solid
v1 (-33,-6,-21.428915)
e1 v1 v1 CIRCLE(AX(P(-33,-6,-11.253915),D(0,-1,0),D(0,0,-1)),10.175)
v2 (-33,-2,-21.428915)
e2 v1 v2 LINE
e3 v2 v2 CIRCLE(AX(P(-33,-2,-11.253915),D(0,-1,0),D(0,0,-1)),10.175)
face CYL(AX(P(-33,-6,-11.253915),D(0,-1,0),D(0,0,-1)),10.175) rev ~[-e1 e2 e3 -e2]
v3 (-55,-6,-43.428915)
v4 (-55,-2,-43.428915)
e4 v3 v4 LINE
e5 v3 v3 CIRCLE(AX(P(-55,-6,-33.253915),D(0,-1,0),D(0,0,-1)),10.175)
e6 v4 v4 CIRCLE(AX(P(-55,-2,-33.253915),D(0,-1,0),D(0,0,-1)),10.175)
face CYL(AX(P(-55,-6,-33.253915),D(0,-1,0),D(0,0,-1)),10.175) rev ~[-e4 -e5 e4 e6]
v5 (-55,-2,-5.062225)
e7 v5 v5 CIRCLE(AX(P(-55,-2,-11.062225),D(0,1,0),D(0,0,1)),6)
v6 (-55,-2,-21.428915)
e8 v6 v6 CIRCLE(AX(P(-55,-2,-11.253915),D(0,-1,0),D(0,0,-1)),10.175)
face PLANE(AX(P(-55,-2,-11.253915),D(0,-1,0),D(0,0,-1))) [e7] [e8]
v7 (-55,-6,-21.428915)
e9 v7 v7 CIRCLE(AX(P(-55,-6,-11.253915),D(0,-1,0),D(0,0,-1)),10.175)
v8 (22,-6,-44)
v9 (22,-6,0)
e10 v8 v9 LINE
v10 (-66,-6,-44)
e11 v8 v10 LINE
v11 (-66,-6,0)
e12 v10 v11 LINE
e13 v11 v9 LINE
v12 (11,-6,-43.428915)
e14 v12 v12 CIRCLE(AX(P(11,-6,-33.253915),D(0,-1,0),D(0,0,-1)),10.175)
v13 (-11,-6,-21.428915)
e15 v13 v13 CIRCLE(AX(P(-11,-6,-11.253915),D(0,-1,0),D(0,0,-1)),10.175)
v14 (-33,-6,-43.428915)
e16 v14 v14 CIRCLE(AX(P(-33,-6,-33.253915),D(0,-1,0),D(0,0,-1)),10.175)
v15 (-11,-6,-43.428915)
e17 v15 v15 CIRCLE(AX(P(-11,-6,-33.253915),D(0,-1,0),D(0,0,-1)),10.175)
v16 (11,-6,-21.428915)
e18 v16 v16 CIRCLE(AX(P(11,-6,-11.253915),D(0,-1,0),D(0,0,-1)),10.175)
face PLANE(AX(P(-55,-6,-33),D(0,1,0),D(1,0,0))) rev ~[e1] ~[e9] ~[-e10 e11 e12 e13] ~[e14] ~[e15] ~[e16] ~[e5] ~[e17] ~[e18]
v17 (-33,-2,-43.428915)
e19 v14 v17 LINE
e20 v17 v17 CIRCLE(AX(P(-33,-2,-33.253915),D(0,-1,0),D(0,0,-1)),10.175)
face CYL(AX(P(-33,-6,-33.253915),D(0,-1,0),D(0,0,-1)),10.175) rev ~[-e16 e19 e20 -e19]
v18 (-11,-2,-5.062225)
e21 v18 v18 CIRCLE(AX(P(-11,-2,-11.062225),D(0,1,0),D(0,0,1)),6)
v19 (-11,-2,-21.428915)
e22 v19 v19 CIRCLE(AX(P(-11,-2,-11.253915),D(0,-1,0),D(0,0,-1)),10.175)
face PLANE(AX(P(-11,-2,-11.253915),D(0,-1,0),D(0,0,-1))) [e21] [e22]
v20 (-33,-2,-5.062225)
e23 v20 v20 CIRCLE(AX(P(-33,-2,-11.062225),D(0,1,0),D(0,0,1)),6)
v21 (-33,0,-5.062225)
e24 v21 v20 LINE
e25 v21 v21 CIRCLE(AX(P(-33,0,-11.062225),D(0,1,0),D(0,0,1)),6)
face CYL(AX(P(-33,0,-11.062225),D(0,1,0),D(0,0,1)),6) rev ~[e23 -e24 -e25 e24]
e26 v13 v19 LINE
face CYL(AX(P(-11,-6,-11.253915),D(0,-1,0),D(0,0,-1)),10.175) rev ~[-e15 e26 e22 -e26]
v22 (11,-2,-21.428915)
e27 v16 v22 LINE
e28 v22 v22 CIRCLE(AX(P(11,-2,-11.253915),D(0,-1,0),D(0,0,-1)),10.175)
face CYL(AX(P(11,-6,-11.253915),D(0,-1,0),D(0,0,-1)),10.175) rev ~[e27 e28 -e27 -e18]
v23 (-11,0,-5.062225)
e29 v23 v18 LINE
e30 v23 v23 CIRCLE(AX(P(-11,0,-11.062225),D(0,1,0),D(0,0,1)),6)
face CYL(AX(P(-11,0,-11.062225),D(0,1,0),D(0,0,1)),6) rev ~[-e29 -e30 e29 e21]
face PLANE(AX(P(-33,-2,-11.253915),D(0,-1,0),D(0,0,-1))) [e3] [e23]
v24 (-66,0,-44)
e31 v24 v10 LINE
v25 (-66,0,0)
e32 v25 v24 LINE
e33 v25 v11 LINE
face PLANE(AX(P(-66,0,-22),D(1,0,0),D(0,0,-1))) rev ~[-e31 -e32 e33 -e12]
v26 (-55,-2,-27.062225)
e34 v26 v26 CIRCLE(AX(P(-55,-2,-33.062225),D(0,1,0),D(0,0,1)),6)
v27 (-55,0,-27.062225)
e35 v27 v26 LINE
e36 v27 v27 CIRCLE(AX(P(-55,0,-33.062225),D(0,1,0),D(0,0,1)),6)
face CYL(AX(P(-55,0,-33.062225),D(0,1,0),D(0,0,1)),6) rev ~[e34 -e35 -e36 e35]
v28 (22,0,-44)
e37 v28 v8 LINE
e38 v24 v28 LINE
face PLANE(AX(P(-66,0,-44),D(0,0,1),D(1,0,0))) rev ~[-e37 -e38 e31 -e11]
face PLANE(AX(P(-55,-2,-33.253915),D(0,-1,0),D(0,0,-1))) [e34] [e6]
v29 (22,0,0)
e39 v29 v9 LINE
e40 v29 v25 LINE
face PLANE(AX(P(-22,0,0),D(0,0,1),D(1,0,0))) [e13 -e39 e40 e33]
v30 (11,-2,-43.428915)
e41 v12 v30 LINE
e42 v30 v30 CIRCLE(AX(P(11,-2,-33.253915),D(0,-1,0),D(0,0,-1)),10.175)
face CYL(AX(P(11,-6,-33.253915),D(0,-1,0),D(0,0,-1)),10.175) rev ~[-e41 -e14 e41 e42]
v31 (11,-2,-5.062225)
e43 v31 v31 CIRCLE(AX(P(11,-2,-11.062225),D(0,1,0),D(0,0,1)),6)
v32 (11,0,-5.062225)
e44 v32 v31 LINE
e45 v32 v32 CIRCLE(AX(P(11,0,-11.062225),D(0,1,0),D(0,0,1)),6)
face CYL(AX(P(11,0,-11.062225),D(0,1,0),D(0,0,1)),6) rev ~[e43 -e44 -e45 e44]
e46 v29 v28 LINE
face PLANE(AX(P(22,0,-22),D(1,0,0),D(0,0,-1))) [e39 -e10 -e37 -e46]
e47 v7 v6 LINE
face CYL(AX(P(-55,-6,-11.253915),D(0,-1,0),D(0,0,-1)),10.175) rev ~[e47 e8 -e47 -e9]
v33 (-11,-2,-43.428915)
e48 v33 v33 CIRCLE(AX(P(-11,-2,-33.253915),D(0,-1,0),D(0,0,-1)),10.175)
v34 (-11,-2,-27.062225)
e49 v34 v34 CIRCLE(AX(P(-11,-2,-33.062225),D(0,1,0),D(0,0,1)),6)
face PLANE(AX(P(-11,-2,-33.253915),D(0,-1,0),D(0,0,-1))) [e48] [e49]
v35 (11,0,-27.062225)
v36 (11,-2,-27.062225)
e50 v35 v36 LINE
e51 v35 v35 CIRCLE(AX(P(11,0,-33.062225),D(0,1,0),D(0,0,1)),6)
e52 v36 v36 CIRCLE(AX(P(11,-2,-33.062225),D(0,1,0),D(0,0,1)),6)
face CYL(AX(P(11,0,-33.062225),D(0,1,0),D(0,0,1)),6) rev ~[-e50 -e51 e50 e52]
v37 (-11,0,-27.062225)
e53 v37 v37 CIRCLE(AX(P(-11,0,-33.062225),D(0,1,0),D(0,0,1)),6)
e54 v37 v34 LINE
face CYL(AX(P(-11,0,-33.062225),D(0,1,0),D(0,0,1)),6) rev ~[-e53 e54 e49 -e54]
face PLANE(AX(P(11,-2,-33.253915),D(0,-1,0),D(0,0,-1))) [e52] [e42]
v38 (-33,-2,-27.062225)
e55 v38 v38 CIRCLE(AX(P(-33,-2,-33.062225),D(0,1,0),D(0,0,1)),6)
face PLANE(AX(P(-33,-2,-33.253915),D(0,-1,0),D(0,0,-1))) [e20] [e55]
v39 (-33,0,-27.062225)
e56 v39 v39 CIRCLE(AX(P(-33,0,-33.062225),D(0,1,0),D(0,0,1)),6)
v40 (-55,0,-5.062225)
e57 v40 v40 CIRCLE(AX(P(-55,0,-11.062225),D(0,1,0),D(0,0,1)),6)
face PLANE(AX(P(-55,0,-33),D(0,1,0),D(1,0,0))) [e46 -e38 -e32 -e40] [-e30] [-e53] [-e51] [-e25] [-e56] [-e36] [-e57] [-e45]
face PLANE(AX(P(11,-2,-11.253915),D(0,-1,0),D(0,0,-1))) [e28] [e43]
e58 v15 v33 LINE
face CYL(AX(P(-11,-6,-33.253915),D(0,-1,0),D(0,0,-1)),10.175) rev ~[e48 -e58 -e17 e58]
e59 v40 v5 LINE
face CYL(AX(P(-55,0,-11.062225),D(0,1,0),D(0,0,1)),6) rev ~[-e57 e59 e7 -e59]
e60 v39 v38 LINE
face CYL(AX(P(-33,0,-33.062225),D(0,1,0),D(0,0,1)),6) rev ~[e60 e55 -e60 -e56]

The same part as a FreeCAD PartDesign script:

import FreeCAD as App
import Part
import Sketcher

doc = App.newDocument("Part")
body = doc.addObject("PartDesign::Body", "Body")

sketch1 = body.newObject("Sketcher::SketchObject", "Sketch")
sketch1.AttachmentSupport = (doc.getObject("XZ_Plane"), [""])
sketch1.MapMode = "FlatFace"
sketch1.addGeometry([
    Part.LineSegment(App.Vector(0, -22, 0), App.Vector(0, 0, 0)),
    Part.LineSegment(App.Vector(0, 0, 0), App.Vector(22, 0, 0)),
    Part.LineSegment(App.Vector(22, 0, 0), App.Vector(22, -22, 0)),
    Part.LineSegment(App.Vector(22, -22, 0), App.Vector(0, -22, 0)),
], False)
sketch1.addConstraint([
    Sketcher.Constraint("Coincident", 0, 2, 1, 1),
    Sketcher.Constraint("Coincident", 1, 2, 2, 1),
    Sketcher.Constraint("Coincident", 2, 2, 3, 1),
    Sketcher.Constraint("Coincident", 3, 2, 0, 1),
    Sketcher.Constraint("Vertical", 0),
    Sketcher.Constraint("Horizontal", 1),
    Sketcher.Constraint("Vertical", 2),
    Sketcher.Constraint("Horizontal", 3),
    Sketcher.Constraint("Coincident", 0, 2, -1, 1),
    Sketcher.Constraint("Equal", 3, 0),
    Sketcher.Constraint("DistanceX", 1, 1, 1, 2, 22.0),
])
pad1 = body.newObject("PartDesign::Pad", "Pad")
pad1.Profile = sketch1
pad1.Length = 6

sketch2 = body.newObject("Sketcher::SketchObject", "Sketch001")
sketch2.AttachmentSupport = (doc.getObject("XZ_Plane"), [""])
sketch2.MapMode = "FlatFace"
sketch2.addGeometry(Part.Circle(App.Vector(11, -11, 0), App.Vector(0, 0, 1), 6), False)
sketch2.addConstraint([
    Sketcher.Constraint("Diameter", 0, 12.0),
    Sketcher.Constraint("DistanceX", -1, 1, 0, 3, 11.0),
    Sketcher.Constraint("DistanceY", 0, 3, -1, 1, 11.062225),
])
pocket1 = body.newObject("PartDesign::Pocket", "Pocket")
pocket1.Profile = sketch2
pocket1.Length = 2
pocket1.Reversed = True

sketch3 = body.newObject("Sketcher::SketchObject", "Sketch002")
sketch3.AttachmentSupport = (doc.getObject("XZ_Plane"), [""])
sketch3.MapMode = "FlatFace"
sketch3.AttachmentOffset = App.Placement(App.Vector(0, 0, 6), App.Rotation())
sketch3.addGeometry(Part.Circle(App.Vector(11, -11, 0), App.Vector(0, 0, 1), 10), False)
sketch3.addConstraint([
    Sketcher.Constraint("Diameter", 0, 20.35),
    Sketcher.Constraint("DistanceX", -1, 1, 0, 3, 11.0),
    Sketcher.Constraint("DistanceY", 0, 3, -1, 1, 11.253915),
])
pocket2 = body.newObject("PartDesign::Pocket", "Pocket001")
pocket2.Profile = sketch3
pocket2.Length = 4
doc.recompute()

linearpattern = body.newObject("PartDesign::LinearPattern", "LinearPattern")
linearpattern.Originals = [pad1, pocket1, pocket2]
linearpattern.Direction = (doc.getObject("X_Axis"), [""])
linearpattern.Mode = "offset"
linearpattern.Offset = 22
linearpattern.Occurrences = 4
linearpattern.Reversed = True
body.Tip = linearpattern
doc.recompute()

linearpattern2 = body.newObject("PartDesign::LinearPattern", "LinearPattern001")
linearpattern2.Originals = [pad1, pocket1, pocket2]
linearpattern2.Direction = (doc.getObject("Z_Axis"), [""])
linearpattern2.Mode = "offset"
linearpattern2.Offset = 22
linearpattern2.Occurrences = 2
linearpattern2.Reversed = True
body.Tip = linearpattern2

sketch4 = body.newObject("Sketcher::SketchObject", "Sketch003")
sketch4.AttachmentSupport = (doc.getObject("XZ_Plane"), [""])
sketch4.MapMode = "FlatFace"
sketch4.addGeometry([
    Part.LineSegment(App.Vector(-22, -44, 0), App.Vector(-22, -22, 0)),
    Part.LineSegment(App.Vector(-22, -22, 0), App.Vector(0, -22, 0)),
    Part.LineSegment(App.Vector(0, -22, 0), App.Vector(0, -44, 0)),
    Part.LineSegment(App.Vector(0, -44, 0), App.Vector(-22, -44, 0)),
], False)
sketch4.addConstraint([
    Sketcher.Constraint("Coincident", 0, 2, 1, 1),
    Sketcher.Constraint("Coincident", 1, 2, 2, 1),
    Sketcher.Constraint("Coincident", 2, 2, 3, 1),
    Sketcher.Constraint("Coincident", 3, 2, 0, 1),
    Sketcher.Constraint("Vertical", 0),
    Sketcher.Constraint("Horizontal", 1),
    Sketcher.Constraint("Vertical", 2),
    Sketcher.Constraint("Horizontal", 3),
    Sketcher.Constraint("PointOnObject", 1, 2, -2),
    Sketcher.Constraint("Equal", 3, 0),
    Sketcher.Constraint("DistanceX", 1, 1, 1, 2, 22.0),
    Sketcher.Constraint("DistanceY", 0, 2, -1, 1, 22.0),
])
pad2 = body.newObject("PartDesign::Pad", "Pad001")
pad2.Profile = sketch4
pad2.Length = 6

sketch5 = body.newObject("Sketcher::SketchObject", "Sketch004")
sketch5.AttachmentSupport = (doc.getObject("XZ_Plane"), [""])
sketch5.MapMode = "FlatFace"
sketch5.addGeometry([
    Part.LineSegment(App.Vector(-44, -44, 0), App.Vector(-44, -22, 0)),
    Part.LineSegment(App.Vector(-44, -22, 0), App.Vector(-22, -22, 0)),
    Part.LineSegment(App.Vector(-22, -22, 0), App.Vector(-22, -44, 0)),
    Part.LineSegment(App.Vector(-22, -44, 0), App.Vector(-44, -44, 0)),
], False)
sketch5.addConstraint([
    Sketcher.Constraint("Coincident", 0, 2, 1, 1),
    Sketcher.Constraint("Coincident", 1, 2, 2, 1),
    Sketcher.Constraint("Coincident", 2, 2, 3, 1),
    Sketcher.Constraint("Coincident", 3, 2, 0, 1),
    Sketcher.Constraint("Vertical", 0),
    Sketcher.Constraint("Horizontal", 1),
    Sketcher.Constraint("Vertical", 2),
    Sketcher.Constraint("Horizontal", 3),
    Sketcher.Constraint("Equal", 3, 0),
    Sketcher.Constraint("DistanceX", 1, 1, 1, 2, 22.0),
    Sketcher.Constraint("DistanceX", 0, 2, -1, 1, 44.0),
    Sketcher.Constraint("DistanceY", 0, 2, -1, 1, 22.0),
])
pad3 = body.newObject("PartDesign::Pad", "Pad002")
pad3.Profile = sketch5
pad3.Length = 6

sketch6 = body.newObject("Sketcher::SketchObject", "Sketch005")
sketch6.AttachmentSupport = (doc.getObject("XZ_Plane"), [""])
sketch6.MapMode = "FlatFace"
sketch6.addGeometry([
    Part.LineSegment(App.Vector(-66, -44, 0), App.Vector(-66, -22, 0)),
    Part.LineSegment(App.Vector(-66, -22, 0), App.Vector(-44, -22, 0)),
    Part.LineSegment(App.Vector(-44, -22, 0), App.Vector(-44, -44, 0)),
    Part.LineSegment(App.Vector(-44, -44, 0), App.Vector(-66, -44, 0)),
], False)
sketch6.addConstraint([
    Sketcher.Constraint("Coincident", 0, 2, 1, 1),
    Sketcher.Constraint("Coincident", 1, 2, 2, 1),
    Sketcher.Constraint("Coincident", 2, 2, 3, 1),
    Sketcher.Constraint("Coincident", 3, 2, 0, 1),
    Sketcher.Constraint("Vertical", 0),
    Sketcher.Constraint("Horizontal", 1),
    Sketcher.Constraint("Vertical", 2),
    Sketcher.Constraint("Horizontal", 3),
    Sketcher.Constraint("Equal", 3, 0),
    Sketcher.Constraint("DistanceX", 1, 1, 1, 2, 22.0),
    Sketcher.Constraint("DistanceX", 0, 2, -1, 1, 66.0),
    Sketcher.Constraint("DistanceY", 0, 2, -1, 1, 22.0),
])
pad4 = body.newObject("PartDesign::Pad", "Pad003")
pad4.Profile = sketch6
pad4.Length = 6

sketch7 = body.newObject("Sketcher::SketchObject", "Sketch006")
sketch7.AttachmentSupport = (doc.getObject("XZ_Plane"), [""])
sketch7.MapMode = "FlatFace"
sketch7.addGeometry(Part.Circle(App.Vector(-11, -33, 0), App.Vector(0, 0, 1), 6), False)
sketch7.addConstraint([
    Sketcher.Constraint("Diameter", 0, 12.0),
    Sketcher.Constraint("DistanceX", 0, 3, -1, 1, 11.0),
    Sketcher.Constraint("DistanceY", 0, 3, -1, 1, 33.062225),
])
pocket3 = body.newObject("PartDesign::Pocket", "Pocket002")
pocket3.Profile = sketch7
pocket3.Length = 2
pocket3.Reversed = True

sketch8 = body.newObject("Sketcher::SketchObject", "Sketch007")
sketch8.AttachmentSupport = (doc.getObject("XZ_Plane"), [""])
sketch8.MapMode = "FlatFace"
sketch8.addGeometry(Part.Circle(App.Vector(-33, -33, 0), App.Vector(0, 0, 1), 6), False)
sketch8.addConstraint([
    Sketcher.Constraint("Diameter", 0, 12.0),
    Sketcher.Constraint("DistanceX", 0, 3, -1, 1, 33.0),
    Sketcher.Constraint("DistanceY", 0, 3, -1, 1, 33.062225),
])
pocket4 = body.newObject("PartDesign::Pocket", "Pocket003")
pocket4.Profile = sketch8
pocket4.Length = 2
pocket4.Reversed = True

sketch9 = body.newObject("Sketcher::SketchObject", "Sketch008")
sketch9.AttachmentSupport = (doc.getObject("XZ_Plane"), [""])
sketch9.MapMode = "FlatFace"
sketch9.addGeometry(Part.Circle(App.Vector(-55, -33, 0), App.Vector(0, 0, 1), 6), False)
sketch9.addConstraint([
    Sketcher.Constraint("Diameter", 0, 12.0),
    Sketcher.Constraint("DistanceX", 0, 3, -1, 1, 55.0),
    Sketcher.Constraint("DistanceY", 0, 3, -1, 1, 33.062225),
])
pocket5 = body.newObject("PartDesign::Pocket", "Pocket004")
pocket5.Profile = sketch9
pocket5.Length = 2
pocket5.Reversed = True

sketch10 = body.newObject("Sketcher::SketchObject", "Sketch009")
sketch10.AttachmentSupport = (doc.getObject("XZ_Plane"), [""])
sketch10.MapMode = "FlatFace"
sketch10.AttachmentOffset = App.Placement(App.Vector(0, 0, 6), App.Rotation())
sketch10.addGeometry(Part.Circle(App.Vector(-11, -33, 0), App.Vector(0, 0, 1), 10), False)
sketch10.addConstraint([
    Sketcher.Constraint("Diameter", 0, 20.35),
    Sketcher.Constraint("DistanceX", 0, 3, -1, 1, 11.0),
    Sketcher.Constraint("DistanceY", 0, 3, -1, 1, 33.253915),
])
pocket6 = body.newObject("PartDesign::Pocket", "Pocket005")
pocket6.Profile = sketch10
pocket6.Length = 4

sketch11 = body.newObject("Sketcher::SketchObject", "Sketch010")
sketch11.AttachmentSupport = (doc.getObject("XZ_Plane"), [""])
sketch11.MapMode = "FlatFace"
sketch11.AttachmentOffset = App.Placement(App.Vector(0, 0, 6), App.Rotation())
sketch11.addGeometry(Part.Circle(App.Vector(-33, -33, 0), App.Vector(0, 0, 1), 10), False)
sketch11.addConstraint([
    Sketcher.Constraint("Diameter", 0, 20.35),
    Sketcher.Constraint("DistanceX", 0, 3, -1, 1, 33.0),
    Sketcher.Constraint("DistanceY", 0, 3, -1, 1, 33.253915),
])
pocket7 = body.newObject("PartDesign::Pocket", "Pocket006")
pocket7.Profile = sketch11
pocket7.Length = 4

sketch12 = body.newObject("Sketcher::SketchObject", "Sketch011")
sketch12.AttachmentSupport = (doc.getObject("XZ_Plane"), [""])
sketch12.MapMode = "FlatFace"
sketch12.AttachmentOffset = App.Placement(App.Vector(0, 0, 6), App.Rotation())
sketch12.addGeometry(Part.Circle(App.Vector(-55, -33, 0), App.Vector(0, 0, 1), 10), False)
sketch12.addConstraint([
    Sketcher.Constraint("Diameter", 0, 20.35),
    Sketcher.Constraint("DistanceX", 0, 3, -1, 1, 55.0),
    Sketcher.Constraint("DistanceY", 0, 3, -1, 1, 33.253915),
])
pocket8 = body.newObject("PartDesign::Pocket", "Pocket007")
pocket8.Profile = sketch12
pocket8.Length = 4

doc.recompute()
